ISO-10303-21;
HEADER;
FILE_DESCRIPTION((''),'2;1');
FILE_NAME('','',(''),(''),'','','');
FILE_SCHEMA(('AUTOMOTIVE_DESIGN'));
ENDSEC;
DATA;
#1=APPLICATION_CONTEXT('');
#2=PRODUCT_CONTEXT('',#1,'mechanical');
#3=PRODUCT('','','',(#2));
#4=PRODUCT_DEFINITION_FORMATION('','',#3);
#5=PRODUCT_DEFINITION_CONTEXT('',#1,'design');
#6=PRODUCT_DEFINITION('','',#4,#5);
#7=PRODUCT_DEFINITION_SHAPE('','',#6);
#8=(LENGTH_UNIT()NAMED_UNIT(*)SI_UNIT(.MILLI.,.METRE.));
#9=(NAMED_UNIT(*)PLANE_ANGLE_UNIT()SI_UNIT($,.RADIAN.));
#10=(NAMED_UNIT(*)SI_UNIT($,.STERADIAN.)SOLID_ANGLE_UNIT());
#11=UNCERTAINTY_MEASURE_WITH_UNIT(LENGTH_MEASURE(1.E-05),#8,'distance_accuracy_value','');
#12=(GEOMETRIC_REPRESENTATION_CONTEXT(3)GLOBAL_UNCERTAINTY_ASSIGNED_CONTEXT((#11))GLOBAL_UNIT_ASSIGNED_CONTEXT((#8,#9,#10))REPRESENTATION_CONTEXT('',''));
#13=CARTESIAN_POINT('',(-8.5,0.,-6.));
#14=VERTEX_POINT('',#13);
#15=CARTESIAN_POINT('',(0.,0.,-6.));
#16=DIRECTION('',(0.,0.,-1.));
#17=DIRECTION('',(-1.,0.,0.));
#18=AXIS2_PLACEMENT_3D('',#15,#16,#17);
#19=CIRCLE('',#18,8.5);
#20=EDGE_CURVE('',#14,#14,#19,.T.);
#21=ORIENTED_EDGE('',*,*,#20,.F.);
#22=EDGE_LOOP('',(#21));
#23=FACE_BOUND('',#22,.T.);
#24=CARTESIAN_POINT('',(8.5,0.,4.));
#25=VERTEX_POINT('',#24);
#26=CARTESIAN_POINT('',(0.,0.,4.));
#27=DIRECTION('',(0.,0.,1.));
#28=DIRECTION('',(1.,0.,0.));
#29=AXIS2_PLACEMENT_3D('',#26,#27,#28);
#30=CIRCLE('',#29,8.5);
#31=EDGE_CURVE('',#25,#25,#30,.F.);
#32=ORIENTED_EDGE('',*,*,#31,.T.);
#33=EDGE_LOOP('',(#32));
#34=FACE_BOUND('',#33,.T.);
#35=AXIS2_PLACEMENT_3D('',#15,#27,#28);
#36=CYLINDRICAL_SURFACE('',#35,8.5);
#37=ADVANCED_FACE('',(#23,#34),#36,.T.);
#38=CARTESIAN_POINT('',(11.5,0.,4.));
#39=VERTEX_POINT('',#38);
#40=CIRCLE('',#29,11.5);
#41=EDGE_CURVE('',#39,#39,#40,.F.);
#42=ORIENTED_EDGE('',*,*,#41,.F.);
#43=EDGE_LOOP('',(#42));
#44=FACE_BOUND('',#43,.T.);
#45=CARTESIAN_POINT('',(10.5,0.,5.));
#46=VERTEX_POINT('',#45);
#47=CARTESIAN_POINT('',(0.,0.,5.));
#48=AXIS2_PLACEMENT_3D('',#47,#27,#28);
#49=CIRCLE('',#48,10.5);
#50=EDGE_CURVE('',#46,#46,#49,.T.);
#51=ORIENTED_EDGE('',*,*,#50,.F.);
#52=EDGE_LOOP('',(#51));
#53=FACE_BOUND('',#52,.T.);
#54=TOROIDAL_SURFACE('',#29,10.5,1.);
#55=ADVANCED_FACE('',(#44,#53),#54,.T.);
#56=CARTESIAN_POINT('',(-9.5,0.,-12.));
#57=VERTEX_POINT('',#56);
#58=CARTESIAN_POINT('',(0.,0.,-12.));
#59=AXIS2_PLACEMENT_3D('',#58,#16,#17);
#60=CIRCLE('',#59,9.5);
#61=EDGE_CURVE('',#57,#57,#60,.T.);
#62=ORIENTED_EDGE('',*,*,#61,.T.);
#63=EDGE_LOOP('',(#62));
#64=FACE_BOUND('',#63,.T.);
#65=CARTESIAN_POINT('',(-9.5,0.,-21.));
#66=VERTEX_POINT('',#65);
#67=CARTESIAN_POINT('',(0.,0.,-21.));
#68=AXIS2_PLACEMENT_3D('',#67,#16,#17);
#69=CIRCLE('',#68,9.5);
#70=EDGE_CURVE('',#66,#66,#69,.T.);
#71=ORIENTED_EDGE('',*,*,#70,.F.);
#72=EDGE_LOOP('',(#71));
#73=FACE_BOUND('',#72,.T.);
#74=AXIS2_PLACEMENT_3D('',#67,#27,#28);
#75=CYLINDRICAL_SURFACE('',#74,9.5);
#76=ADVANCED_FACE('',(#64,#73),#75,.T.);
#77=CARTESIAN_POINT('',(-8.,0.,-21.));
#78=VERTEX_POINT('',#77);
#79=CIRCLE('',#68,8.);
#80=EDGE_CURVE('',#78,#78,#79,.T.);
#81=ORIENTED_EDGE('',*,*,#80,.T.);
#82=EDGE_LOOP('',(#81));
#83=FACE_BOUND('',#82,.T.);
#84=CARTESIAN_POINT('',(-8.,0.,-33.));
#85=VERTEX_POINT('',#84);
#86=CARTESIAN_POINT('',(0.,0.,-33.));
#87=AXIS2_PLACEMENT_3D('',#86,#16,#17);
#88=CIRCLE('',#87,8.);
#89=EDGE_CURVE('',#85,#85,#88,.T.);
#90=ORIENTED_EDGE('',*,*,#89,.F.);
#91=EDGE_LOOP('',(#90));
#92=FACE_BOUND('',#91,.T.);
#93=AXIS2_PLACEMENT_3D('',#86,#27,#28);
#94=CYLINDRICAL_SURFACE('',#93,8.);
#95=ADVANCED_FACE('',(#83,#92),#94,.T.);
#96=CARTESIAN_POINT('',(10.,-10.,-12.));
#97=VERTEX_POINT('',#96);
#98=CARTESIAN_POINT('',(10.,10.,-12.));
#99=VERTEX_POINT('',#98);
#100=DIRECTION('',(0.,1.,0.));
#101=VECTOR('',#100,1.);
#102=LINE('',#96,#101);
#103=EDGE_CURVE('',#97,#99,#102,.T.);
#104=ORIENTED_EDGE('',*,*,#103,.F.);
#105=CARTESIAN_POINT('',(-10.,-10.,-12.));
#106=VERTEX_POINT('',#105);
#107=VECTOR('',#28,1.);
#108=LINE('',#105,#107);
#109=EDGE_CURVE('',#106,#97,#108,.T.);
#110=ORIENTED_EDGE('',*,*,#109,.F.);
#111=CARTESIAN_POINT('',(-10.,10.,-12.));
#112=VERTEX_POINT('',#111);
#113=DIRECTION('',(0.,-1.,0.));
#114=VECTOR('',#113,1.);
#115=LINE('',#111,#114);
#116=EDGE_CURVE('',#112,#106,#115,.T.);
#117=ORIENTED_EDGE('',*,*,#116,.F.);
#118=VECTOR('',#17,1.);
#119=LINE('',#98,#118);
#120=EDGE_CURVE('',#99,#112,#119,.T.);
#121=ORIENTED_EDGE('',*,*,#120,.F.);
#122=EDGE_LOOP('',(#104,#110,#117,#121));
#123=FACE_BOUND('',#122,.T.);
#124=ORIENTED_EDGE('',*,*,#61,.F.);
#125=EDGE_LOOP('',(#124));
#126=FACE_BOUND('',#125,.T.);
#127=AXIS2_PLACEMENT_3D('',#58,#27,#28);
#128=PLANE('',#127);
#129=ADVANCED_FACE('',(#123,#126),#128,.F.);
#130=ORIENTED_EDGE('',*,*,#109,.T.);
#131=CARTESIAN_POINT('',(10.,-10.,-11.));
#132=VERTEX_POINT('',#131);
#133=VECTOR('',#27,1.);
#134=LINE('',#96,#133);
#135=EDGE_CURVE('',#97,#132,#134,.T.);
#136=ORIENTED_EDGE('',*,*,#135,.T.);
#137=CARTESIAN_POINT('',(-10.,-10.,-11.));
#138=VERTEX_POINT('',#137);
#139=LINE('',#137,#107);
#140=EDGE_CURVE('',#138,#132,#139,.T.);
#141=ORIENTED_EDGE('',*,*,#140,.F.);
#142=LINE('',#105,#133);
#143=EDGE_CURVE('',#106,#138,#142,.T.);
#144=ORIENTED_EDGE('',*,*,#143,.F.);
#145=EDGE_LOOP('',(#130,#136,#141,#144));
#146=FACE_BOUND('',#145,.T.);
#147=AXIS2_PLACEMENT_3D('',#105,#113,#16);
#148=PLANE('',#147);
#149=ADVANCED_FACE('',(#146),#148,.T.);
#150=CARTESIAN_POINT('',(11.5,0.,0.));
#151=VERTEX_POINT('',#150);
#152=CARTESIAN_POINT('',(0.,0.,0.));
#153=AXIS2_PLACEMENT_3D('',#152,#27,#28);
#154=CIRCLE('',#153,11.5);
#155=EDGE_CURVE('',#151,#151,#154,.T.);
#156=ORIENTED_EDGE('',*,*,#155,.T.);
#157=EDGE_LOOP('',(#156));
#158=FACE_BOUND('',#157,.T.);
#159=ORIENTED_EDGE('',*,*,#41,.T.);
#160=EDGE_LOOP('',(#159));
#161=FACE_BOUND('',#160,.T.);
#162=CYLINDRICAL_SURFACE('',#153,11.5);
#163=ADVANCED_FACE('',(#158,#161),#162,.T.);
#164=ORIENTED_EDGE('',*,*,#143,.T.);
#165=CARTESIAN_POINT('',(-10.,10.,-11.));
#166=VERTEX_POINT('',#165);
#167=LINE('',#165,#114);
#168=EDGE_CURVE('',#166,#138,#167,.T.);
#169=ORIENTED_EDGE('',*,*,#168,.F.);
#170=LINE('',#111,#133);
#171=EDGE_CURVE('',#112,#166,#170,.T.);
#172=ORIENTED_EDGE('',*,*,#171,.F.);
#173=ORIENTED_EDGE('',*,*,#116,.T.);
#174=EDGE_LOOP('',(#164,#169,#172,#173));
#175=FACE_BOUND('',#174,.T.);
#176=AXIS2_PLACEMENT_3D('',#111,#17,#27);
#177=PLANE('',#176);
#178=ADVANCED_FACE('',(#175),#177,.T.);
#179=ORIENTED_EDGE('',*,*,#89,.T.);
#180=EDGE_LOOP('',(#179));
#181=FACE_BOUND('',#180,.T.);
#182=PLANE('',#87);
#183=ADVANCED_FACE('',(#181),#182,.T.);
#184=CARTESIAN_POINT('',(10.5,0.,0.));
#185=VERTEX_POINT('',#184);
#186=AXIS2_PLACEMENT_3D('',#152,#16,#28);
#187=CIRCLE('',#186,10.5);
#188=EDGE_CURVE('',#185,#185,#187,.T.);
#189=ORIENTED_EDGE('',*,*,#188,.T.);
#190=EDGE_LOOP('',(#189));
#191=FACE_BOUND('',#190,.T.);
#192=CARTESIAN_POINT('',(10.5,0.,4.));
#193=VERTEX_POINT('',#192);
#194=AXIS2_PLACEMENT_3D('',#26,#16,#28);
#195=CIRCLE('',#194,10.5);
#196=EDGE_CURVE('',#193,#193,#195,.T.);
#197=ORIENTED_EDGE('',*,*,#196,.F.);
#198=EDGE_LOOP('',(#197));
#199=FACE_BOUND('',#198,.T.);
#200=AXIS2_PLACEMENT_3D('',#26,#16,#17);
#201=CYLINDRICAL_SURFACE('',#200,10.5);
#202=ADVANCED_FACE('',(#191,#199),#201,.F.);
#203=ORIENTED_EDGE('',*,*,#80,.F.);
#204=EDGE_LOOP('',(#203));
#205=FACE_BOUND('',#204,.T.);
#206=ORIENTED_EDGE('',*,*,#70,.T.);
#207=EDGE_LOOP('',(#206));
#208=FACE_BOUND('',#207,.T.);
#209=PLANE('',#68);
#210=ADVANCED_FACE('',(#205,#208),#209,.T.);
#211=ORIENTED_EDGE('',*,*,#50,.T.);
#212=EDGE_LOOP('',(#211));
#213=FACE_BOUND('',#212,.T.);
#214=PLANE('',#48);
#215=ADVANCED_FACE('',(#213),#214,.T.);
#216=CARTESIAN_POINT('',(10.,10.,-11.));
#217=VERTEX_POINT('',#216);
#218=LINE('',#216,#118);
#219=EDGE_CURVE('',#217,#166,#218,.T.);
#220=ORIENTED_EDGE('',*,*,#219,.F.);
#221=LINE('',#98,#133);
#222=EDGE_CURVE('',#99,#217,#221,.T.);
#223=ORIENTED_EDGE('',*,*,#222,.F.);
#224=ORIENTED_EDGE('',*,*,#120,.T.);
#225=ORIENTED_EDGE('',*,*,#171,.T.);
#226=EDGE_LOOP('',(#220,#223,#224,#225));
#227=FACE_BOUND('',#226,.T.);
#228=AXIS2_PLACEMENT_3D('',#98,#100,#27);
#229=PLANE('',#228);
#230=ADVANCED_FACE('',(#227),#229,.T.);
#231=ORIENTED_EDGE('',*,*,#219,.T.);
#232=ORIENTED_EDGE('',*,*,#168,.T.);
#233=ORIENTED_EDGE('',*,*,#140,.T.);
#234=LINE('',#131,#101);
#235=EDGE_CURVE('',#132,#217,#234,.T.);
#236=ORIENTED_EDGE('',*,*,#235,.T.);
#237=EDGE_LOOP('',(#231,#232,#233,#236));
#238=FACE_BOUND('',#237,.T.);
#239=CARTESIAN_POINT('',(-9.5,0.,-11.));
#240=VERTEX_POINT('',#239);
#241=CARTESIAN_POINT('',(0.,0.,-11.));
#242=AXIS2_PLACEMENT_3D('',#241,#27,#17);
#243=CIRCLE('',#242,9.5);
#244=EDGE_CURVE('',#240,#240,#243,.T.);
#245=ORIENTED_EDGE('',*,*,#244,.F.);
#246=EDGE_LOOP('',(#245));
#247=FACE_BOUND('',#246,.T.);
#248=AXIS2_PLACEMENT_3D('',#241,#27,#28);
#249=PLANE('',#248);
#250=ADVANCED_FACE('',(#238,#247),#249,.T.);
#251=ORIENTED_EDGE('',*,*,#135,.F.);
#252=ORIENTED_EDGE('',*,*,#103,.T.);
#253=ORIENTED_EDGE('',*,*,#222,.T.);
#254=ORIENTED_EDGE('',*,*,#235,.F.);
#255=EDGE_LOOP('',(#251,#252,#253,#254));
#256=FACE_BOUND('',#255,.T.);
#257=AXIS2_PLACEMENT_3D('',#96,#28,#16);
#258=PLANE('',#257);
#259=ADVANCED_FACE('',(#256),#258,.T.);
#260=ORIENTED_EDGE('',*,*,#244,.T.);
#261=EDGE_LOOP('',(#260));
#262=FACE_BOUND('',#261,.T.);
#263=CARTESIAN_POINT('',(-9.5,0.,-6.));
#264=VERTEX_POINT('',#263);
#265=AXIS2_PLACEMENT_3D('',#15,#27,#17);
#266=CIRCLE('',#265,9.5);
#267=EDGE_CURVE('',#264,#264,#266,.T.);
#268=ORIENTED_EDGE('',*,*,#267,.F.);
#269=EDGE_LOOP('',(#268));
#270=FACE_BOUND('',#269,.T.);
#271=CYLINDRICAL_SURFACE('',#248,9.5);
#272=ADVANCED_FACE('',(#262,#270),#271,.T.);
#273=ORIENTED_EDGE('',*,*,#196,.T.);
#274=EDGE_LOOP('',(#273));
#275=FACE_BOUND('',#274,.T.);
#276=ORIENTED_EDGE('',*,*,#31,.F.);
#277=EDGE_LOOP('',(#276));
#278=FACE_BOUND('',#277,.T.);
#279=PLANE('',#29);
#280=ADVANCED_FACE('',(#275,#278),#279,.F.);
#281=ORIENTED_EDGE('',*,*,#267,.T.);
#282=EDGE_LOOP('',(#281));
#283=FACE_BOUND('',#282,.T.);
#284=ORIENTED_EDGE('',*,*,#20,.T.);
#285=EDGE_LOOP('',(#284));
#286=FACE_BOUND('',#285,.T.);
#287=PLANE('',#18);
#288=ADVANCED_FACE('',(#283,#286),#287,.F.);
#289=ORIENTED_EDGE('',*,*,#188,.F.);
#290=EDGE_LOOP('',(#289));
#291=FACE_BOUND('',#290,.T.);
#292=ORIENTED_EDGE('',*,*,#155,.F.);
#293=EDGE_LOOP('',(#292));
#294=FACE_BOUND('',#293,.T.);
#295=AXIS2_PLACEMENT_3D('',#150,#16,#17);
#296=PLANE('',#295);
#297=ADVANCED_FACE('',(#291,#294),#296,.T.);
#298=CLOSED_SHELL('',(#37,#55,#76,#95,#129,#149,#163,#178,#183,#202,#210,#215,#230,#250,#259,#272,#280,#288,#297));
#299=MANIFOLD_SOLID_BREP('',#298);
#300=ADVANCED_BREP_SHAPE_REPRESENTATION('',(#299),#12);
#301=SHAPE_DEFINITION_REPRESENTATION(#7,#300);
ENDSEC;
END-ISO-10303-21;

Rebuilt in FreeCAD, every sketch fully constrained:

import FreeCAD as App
import Part
import Sketcher
from FreeCAD import Vector
Q = App.Units.Quantity


def edges_at(feature, points):
    """Names of the edges that pass closest to the given points."""
    edges = feature.Shape.Edges
    near = lambda p: min(range(len(edges)), key=lambda i: edges[i].distToShape(Part.Vertex(*p))[0])
    return sorted({f"Edge{near(p) + 1}" for p in points})

doc = App.newDocument("Part")
body = doc.addObject("PartDesign::Body", "Body")

sketch1 = body.newObject("Sketcher::SketchObject", "Sketch")
sketch1.AttachmentSupport = (doc.getObject("XZ_Plane"), [""])
sketch1.MapMode = "FlatFace"
sketch1.addGeometry([
    Part.LineSegment(Vector(0, 0, 0), Vector(0, 5, 0)),
    Part.LineSegment(Vector(0, 5, 0), Vector(11.5, 5, 0)),
    Part.LineSegment(Vector(11.5, 5, 0), Vector(11.5, 0, 0)),
    Part.LineSegment(Vector(11.5, 0, 0), Vector(0, 0, 0)),
], False)
sketch1.addConstraint([
    Sketcher.Constraint("Coincident", 0, 2, 1, 1),
    Sketcher.Constraint("Coincident", 1, 2, 2, 1),
    Sketcher.Constraint("Coincident", 2, 2, 3, 1),
    Sketcher.Constraint("Coincident", 3, 2, 0, 1),
    Sketcher.Constraint("Vertical", 0),
    Sketcher.Constraint("Horizontal", 1),
    Sketcher.Constraint("Vertical", 2),
    Sketcher.Constraint("Horizontal", 3),
    Sketcher.Constraint("Coincident", 3, 2, -1, 1),
    Sketcher.Constraint("DistanceY", 0, 1, 0, 2, Q("5 mm")),
    Sketcher.Constraint("DistanceX", 1, 1, 1, 2, Q("11.5 mm")),
])
revolution = body.newObject("PartDesign::Revolution", "Revolution")
revolution.Profile = sketch1
revolution.ReferenceAxis = (sketch1, ["V_Axis"])
revolution.Angle = 360

sketch2 = body.newObject("Sketcher::SketchObject", "Sketch001")
sketch2.AttachmentSupport = (doc.getObject("XY_Plane"), [""])
sketch2.MapMode = "FlatFace"
sketch2.addGeometry(Part.Circle(Vector(0, 0, 0), Vector(0, 0, 1), 10.5), False)
sketch2.addConstraint([
    Sketcher.Constraint("Coincident", 0, 3, -1, 1),
    Sketcher.Constraint("Diameter", 0, Q("21 mm")),
])
pocket1 = body.newObject("PartDesign::Pocket", "Pocket")
pocket1.Profile = sketch2
pocket1.Length = 4
pocket1.Reversed = True

sketch3 = body.newObject("Sketcher::SketchObject", "Sketch002")
sketch3.AttachmentSupport = (doc.getObject("XY_Plane"), [""])
sketch3.MapMode = "FlatFace"
sketch3.AttachmentOffset = App.Placement(Vector(0, 0, 4), App.Rotation())
sketch3.addGeometry(Part.Circle(Vector(0, 0, 0), Vector(0, 0, 1), 8.5), False)
sketch3.addConstraint([
    Sketcher.Constraint("Coincident", 0, 3, -1, 1),
    Sketcher.Constraint("Diameter", 0, Q("17 mm")),
])
pad1 = body.newObject("PartDesign::Pad", "Pad")
pad1.Profile = sketch3
pad1.Length = 10
pad1.Reversed = True

sketch4 = body.newObject("Sketcher::SketchObject", "Sketch003")
sketch4.AttachmentSupport = (doc.getObject("XY_Plane"), [""])
sketch4.MapMode = "FlatFace"
sketch4.AttachmentOffset = App.Placement(Vector(0, 0, -6), App.Rotation())
sketch4.addGeometry(Part.Circle(Vector(0, 0, 0), Vector(0, 0, 1), 9.5), False)
sketch4.addConstraint([
    Sketcher.Constraint("Coincident", 0, 3, -1, 1),
    Sketcher.Constraint("Diameter", 0, Q("19 mm")),
])
pad2 = body.newObject("PartDesign::Pad", "Pad001")
pad2.Profile = sketch4
pad2.Length = 5
pad2.Reversed = True

sketch5 = body.newObject("Sketcher::SketchObject", "Sketch004")
sketch5.AttachmentSupport = (doc.getObject("XY_Plane"), [""])
sketch5.MapMode = "FlatFace"
sketch5.AttachmentOffset = App.Placement(Vector(0, 0, -11), App.Rotation())
sketch5.addGeometry([
    Part.LineSegment(Vector(-10, 10, 0), Vector(-10, -10, 0)),
    Part.LineSegment(Vector(-10, -10, 0), Vector(10, -10, 0)),
    Part.LineSegment(Vector(10, -10, 0), Vector(10, 10, 0)),
    Part.LineSegment(Vector(10, 10, 0), Vector(-10, 10, 0)),
], False)
sketch5.addConstraint([
    Sketcher.Constraint("Coincident", 0, 2, 1, 1),
    Sketcher.Constraint("Coincident", 1, 2, 2, 1),
    Sketcher.Constraint("Coincident", 2, 2, 3, 1),
    Sketcher.Constraint("Coincident", 3, 2, 0, 1),
    Sketcher.Constraint("Vertical", 0),
    Sketcher.Constraint("Horizontal", 1),
    Sketcher.Constraint("Vertical", 2),
    Sketcher.Constraint("Horizontal", 3),
    Sketcher.Constraint("Symmetric", 0, 2, 2, 2, -1, 1),
    Sketcher.Constraint("Equal", 3, 0),
    Sketcher.Constraint("DistanceX", 1, 1, 1, 2, Q("20 mm")),
])
pad3 = body.newObject("PartDesign::Pad", "Pad002")
pad3.Profile = sketch5
pad3.Length = 1
pad3.Reversed = True

sketch6 = body.newObject("Sketcher::SketchObject", "Sketch005")
sketch6.AttachmentSupport = (doc.getObject("XY_Plane"), [""])
sketch6.MapMode = "FlatFace"
sketch6.AttachmentOffset = App.Placement(Vector(0, 0, -12), App.Rotation())
sketch6.addGeometry(Part.Circle(Vector(0, 0, 0), Vector(0, 0, 1), 9.5), False)
sketch6.addConstraint([
    Sketcher.Constraint("Coincident", 0, 3, -1, 1),
    Sketcher.Constraint("Diameter", 0, Q("19 mm")),
])
pad4 = body.newObject("PartDesign::Pad", "Pad003")
pad4.Profile = sketch6
pad4.Length = 9
pad4.Reversed = True

sketch7 = body.newObject("Sketcher::SketchObject", "Sketch006")
sketch7.AttachmentSupport = (doc.getObject("XY_Plane"), [""])
sketch7.MapMode = "FlatFace"
sketch7.AttachmentOffset = App.Placement(Vector(0, 0, -21), App.Rotation())
sketch7.addGeometry(Part.Circle(Vector(0, 0, 0), Vector(0, 0, 1), 8), False)
sketch7.addConstraint([
    Sketcher.Constraint("Coincident", 0, 3, -1, 1),
    Sketcher.Constraint("Diameter", 0, Q("16 mm")),
])
pad5 = body.newObject("PartDesign::Pad", "Pad004")
pad5.Profile = sketch7
pad5.Length = 12
pad5.Reversed = True
doc.recompute()

fillet = body.newObject("PartDesign::Fillet", "Fillet")
fillet.Base = (pad5, edges_at(pad5, [(-11.5, 0, 5)]))
fillet.Radius = 1

doc.recompute()
